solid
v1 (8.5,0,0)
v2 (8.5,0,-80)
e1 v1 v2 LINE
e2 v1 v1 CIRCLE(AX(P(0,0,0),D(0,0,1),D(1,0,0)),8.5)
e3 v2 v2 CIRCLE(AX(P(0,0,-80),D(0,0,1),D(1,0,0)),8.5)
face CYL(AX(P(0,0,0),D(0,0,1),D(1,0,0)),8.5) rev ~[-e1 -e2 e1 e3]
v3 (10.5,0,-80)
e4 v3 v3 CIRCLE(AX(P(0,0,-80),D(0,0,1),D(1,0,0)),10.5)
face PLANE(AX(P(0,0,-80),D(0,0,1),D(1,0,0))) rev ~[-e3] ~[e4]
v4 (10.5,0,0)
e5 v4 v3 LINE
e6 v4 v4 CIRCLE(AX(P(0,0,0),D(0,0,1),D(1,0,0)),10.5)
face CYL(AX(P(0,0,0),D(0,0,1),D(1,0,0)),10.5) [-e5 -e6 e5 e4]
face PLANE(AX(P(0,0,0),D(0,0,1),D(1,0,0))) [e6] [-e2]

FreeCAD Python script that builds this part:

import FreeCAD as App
import Part
import Sketcher

doc = App.newDocument("Part")
body = doc.addObject("PartDesign::Body", "Body")

# Sketch on XY plane
sketch1 = body.newObject("Sketcher::SketchObject", "Sketch")
sketch1.AttachmentSupport = (doc.getObject("XY_Plane"), [""])
sketch1.MapMode = "FlatFace"
sketch1.addGeometry(Part.Circle(App.Vector(0, 0, 0), App.Vector(0, 0, 1), 10), False)
sketch1.addGeometry(Part.Circle(App.Vector(0, 0, 0), App.Vector(0, 0, 1), 8), False)
sketch1.addConstraint(Sketcher.Constraint("Coincident", 0, 3, -1, 1))
sketch1.addConstraint(Sketcher.Constraint("Coincident", 1, 3, -1, 1))
sketch1.addConstraint(Sketcher.Constraint("Diameter", 0, 21.0))
sketch1.addConstraint(Sketcher.Constraint("Diameter", 1, 17.0))
pad1 = body.newObject("PartDesign::Pad", "Pad")
pad1.Profile = sketch1
pad1.Length = 80
pad1.Reversed = True

doc.recompute()
